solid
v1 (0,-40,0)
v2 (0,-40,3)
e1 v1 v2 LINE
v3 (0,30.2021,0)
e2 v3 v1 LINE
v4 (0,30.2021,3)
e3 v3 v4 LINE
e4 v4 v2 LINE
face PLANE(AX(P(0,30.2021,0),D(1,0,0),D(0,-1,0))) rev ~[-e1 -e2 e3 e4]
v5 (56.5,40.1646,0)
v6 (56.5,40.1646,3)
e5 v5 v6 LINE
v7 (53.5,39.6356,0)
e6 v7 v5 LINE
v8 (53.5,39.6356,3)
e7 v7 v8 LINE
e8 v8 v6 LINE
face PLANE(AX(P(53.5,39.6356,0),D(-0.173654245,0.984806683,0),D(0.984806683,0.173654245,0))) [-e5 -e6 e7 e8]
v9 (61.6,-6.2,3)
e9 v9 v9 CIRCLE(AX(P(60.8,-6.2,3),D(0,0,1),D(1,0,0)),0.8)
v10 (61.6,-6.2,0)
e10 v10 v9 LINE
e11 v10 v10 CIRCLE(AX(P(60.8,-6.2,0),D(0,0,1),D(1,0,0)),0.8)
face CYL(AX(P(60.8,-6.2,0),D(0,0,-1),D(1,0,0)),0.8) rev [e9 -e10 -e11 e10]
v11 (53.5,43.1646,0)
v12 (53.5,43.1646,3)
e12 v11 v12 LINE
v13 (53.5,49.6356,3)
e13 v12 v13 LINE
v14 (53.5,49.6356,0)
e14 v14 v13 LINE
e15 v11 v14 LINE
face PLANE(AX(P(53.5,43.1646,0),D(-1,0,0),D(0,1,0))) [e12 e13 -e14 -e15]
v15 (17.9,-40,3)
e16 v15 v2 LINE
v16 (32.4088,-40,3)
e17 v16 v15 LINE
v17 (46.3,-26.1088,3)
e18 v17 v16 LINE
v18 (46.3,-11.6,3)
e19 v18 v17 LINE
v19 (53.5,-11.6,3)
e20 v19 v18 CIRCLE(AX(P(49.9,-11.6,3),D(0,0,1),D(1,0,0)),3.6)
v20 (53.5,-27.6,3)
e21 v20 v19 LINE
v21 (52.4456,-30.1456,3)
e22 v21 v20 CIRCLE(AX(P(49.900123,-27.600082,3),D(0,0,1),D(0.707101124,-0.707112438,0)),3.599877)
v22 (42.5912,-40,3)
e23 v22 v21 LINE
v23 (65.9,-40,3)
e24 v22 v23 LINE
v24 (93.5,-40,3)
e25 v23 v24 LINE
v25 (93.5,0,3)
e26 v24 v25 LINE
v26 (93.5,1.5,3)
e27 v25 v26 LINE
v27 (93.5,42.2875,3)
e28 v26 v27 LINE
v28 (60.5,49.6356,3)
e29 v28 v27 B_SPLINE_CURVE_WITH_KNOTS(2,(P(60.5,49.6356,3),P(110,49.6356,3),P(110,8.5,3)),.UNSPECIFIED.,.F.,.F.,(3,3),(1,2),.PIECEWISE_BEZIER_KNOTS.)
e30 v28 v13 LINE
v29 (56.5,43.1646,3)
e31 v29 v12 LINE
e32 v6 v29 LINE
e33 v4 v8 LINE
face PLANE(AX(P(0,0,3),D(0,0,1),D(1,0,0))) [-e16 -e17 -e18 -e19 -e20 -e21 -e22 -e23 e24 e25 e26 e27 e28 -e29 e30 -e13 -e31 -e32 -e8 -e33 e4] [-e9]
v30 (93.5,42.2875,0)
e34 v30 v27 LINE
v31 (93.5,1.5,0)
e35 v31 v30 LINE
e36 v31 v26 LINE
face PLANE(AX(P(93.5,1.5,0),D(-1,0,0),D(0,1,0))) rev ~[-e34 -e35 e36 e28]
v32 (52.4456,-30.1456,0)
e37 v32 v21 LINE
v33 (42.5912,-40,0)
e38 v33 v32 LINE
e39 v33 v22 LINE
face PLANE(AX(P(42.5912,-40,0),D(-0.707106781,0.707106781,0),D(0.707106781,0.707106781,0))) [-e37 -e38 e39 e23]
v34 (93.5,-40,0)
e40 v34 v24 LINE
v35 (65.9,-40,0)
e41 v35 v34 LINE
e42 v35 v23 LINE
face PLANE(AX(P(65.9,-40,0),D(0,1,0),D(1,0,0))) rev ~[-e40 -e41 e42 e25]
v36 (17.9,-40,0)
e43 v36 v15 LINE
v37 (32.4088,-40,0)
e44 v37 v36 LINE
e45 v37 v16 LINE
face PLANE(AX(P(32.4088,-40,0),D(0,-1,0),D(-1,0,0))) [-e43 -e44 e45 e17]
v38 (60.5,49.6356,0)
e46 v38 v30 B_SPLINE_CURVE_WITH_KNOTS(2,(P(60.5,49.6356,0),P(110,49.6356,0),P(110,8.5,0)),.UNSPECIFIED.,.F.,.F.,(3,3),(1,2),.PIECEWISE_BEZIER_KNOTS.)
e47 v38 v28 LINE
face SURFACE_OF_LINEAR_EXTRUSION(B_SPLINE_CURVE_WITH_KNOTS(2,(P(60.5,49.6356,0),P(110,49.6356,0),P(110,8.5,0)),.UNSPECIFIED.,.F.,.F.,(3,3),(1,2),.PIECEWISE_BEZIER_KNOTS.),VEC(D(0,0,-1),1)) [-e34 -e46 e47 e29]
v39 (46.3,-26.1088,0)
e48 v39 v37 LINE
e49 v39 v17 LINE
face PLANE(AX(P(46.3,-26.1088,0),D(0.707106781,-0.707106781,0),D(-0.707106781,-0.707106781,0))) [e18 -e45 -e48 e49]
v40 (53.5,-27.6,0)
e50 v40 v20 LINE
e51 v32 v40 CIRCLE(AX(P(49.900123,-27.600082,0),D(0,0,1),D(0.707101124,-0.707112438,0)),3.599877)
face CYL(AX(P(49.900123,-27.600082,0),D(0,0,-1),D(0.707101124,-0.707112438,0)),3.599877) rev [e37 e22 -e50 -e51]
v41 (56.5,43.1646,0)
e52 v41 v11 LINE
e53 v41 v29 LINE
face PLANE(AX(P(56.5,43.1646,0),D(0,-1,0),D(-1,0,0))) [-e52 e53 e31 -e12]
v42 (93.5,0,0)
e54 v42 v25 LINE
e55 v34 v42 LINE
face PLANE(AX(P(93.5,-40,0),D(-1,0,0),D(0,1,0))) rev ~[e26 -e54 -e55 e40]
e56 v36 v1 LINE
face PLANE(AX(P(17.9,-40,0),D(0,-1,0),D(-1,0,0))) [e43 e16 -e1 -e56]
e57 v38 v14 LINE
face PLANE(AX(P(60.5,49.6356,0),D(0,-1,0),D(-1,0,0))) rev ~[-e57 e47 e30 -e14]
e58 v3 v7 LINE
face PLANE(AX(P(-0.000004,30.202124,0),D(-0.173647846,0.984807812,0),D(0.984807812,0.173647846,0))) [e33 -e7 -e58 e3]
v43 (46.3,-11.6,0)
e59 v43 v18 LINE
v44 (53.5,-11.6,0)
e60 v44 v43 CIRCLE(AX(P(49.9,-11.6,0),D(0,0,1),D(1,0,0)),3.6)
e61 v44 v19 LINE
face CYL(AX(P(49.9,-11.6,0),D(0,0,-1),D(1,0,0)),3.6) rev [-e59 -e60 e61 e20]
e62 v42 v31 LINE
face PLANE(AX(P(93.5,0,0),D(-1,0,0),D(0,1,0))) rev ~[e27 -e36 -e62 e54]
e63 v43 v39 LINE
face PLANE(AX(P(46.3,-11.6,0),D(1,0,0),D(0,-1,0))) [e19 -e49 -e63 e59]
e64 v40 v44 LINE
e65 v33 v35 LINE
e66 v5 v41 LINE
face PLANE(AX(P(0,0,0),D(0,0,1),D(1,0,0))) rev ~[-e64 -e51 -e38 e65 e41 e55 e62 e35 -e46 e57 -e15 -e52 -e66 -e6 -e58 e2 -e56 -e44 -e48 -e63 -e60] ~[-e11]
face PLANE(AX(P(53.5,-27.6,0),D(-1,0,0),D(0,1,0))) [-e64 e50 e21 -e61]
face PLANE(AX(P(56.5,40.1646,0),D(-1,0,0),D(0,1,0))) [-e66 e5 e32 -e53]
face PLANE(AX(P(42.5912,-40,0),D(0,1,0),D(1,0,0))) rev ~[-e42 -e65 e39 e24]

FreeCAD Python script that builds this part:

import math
import FreeCAD as App
import Part
import Sketcher
Q = App.Units.Quantity

doc = App.newDocument("Part")
body = doc.addObject("PartDesign::Body", "Body")

sketch1 = body.newObject("Sketcher::SketchObject", "Sketch")
sketch1.AttachmentSupport = (doc.getObject("XY_Plane"), [""])
sketch1.MapMode = "FlatFace"
sketch1.addGeometry(Part.LineSegment(App.Vector(93.5, -40, 0), App.Vector(93.5, 42.2875, 0)), False)
sketch1.addGeometry(Part.BSplineCurve([App.Vector(60.5, 49.6356, 0), App.Vector(81.421136, 49.6356, 0), App.Vector(93.49997, 42.287451, 0)], [3, 3], [1, 1.422649209], False, 2, [1, 1, 1], False), False)
sketch1.addGeometry(Part.LineSegment(App.Vector(60.5, 49.6356, 0), App.Vector(53.5, 49.6356, 0)), False)
sketch1.addGeometry(Part.LineSegment(App.Vector(53.5, 49.6356, 0), App.Vector(53.5, 43.1646, 0)), False)
sketch1.addGeometry(Part.LineSegment(App.Vector(53.5, 43.1646, 0), App.Vector(56.5, 43.1646, 0)), False)
sketch1.addGeometry(Part.LineSegment(App.Vector(56.5, 43.1646, 0), App.Vector(56.5, 40.1646, 0)), False)
sketch1.addGeometry(Part.LineSegment(App.Vector(56.5, 40.1646, 0), App.Vector(53.5, 39.6356, 0)), False)
sketch1.addGeometry(Part.LineSegment(App.Vector(53.5, 39.6356, 0), App.Vector(-0.000004, 30.202124, 0)), False)
sketch1.addGeometry(Part.LineSegment(App.Vector(0, 30.2021, 0), App.Vector(0, -40, 0)), False)
sketch1.addGeometry(Part.LineSegment(App.Vector(0, -40, 0), App.Vector(32.4088, -40, 0)), False)
sketch1.addGeometry(Part.LineSegment(App.Vector(32.4088, -40, 0), App.Vector(46.3, -26.1088, 0)), False)
sketch1.addGeometry(Part.LineSegment(App.Vector(46.3, -26.1088, 0), App.Vector(46.3, -11.6, 0)), False)
sketch1.addGeometry(Part.ArcOfCircle(Part.Circle(App.Vector(49.9, -11.6, 0), App.Vector(0, 0, 1), 3.6), math.radians(0), math.radians(180)), False)
sketch1.addGeometry(Part.LineSegment(App.Vector(53.5, -11.6, 0), App.Vector(53.5, -27.6, 0)), False)
sketch1.addGeometry(Part.ArcOfCircle(Part.Circle(App.Vector(49.9, -27.6, 0), App.Vector(0, 0, 1), 3.600022), math.radians(-45), math.radians(0)), False)
sketch1.addGeometry(Part.LineSegment(App.Vector(52.4456, -30.1456, 0), App.Vector(42.5912, -40, 0)), False)
sketch1.addGeometry(Part.LineSegment(App.Vector(42.5912, -40, 0), App.Vector(93.5, -40, 0)), False)
sketch1.addGeometry(Part.Circle(App.Vector(60.8, -6.2, 0), App.Vector(0, 0, 1), 0.8), False)
sketch1.addConstraint(Sketcher.Constraint("Block", 1))
sketch1.addConstraint(Sketcher.Constraint("Coincident", 0, 2, 1, 2))
sketch1.addConstraint(Sketcher.Constraint("Coincident", 1, 1, 2, 1))
sketch1.addConstraint(Sketcher.Constraint("Coincident", 2, 2, 3, 1))
sketch1.addConstraint(Sketcher.Constraint("Coincident", 3, 2, 4, 1))
sketch1.addConstraint(Sketcher.Constraint("Coincident", 4, 2, 5, 1))
sketch1.addConstraint(Sketcher.Constraint("Coincident", 5, 2, 6, 1))
sketch1.addConstraint(Sketcher.Constraint("Coincident", 6, 2, 7, 1))
sketch1.addConstraint(Sketcher.Constraint("Coincident", 7, 2, 8, 1))
sketch1.addConstraint(Sketcher.Constraint("Coincident", 8, 2, 9, 1))
sketch1.addConstraint(Sketcher.Constraint("Coincident", 9, 2, 10, 1))
sketch1.addConstraint(Sketcher.Constraint("Coincident", 10, 2, 11, 1))
sketch1.addConstraint(Sketcher.Constraint("Tangent", 11, 2, 12, 2))
sketch1.addConstraint(Sketcher.Constraint("Tangent", 12, 1, 13, 1))
sketch1.addConstraint(Sketcher.Constraint("Tangent", 13, 2, 14, 2))
sketch1.addConstraint(Sketcher.Constraint("Tangent", 14, 1, 15, 1))
sketch1.addConstraint(Sketcher.Constraint("Coincident", 15, 2, 16, 1))
sketch1.addConstraint(Sketcher.Constraint("Coincident", 16, 2, 0, 1))
sketch1.addConstraint(Sketcher.Constraint("Vertical", 0))
sketch1.addConstraint(Sketcher.Constraint("Horizontal", 2))
sketch1.addConstraint(Sketcher.Constraint("Vertical", 3))
sketch1.addConstraint(Sketcher.Constraint("Horizontal", 4))
sketch1.addConstraint(Sketcher.Constraint("Vertical", 5))
sketch1.addConstraint(Sketcher.Constraint("Vertical", 8))
sketch1.addConstraint(Sketcher.Constraint("Horizontal", 9))
sketch1.addConstraint(Sketcher.Constraint("Vertical", 11))
sketch1.addConstraint(Sketcher.Constraint("Vertical", 13))
sketch1.addConstraint(Sketcher.Constraint("Horizontal", 16))
sketch1.addConstraint(Sketcher.Constraint("Equal", 12, 14))
sketch1.addConstraint(Sketcher.Constraint("PointOnObject", 7, 2, -2))
sketch1.addConstraint(Sketcher.Constraint("Parallel", 6, 7))
sketch1.addConstraint(Sketcher.Constraint("Parallel", 10, 15))
sketch1.addConstraint(Sketcher.Constraint("Horizontal", 9, 2, 15, 2))
sketch1.addConstraint(Sketcher.Constraint("Vertical", 3, 2, 6, 2))
sketch1.addConstraint(Sketcher.Constraint("Vertical", 6, 2, 12, 1))
sketch1.addConstraint(Sketcher.Constraint("Equal", 4, 5))
sketch1.addConstraint(Sketcher.Constraint("DistanceX", 2, 2, 2, 1, 7.0))
sketch1.addConstraint(Sketcher.Constraint("DistanceX", 4, 1, 4, 2, 3.0))
sketch1.addConstraint(Sketcher.Constraint("DistanceY", 6, 2, 2, 2, 10.0))
sketch1.addConstraint(Sketcher.Constraint("Diameter", 17, 1.6))
sketch1.addConstraint(Sketcher.Constraint("Radius", 12, 3.6))
sketch1.addConstraint(Sketcher.Constraint("DistanceY", 13, 2, 13, 1, 16.0))
sketch1.addConstraint(Sketcher.Constraint("Angle", 6, Q("-169.9996 deg")))
sketch1.addConstraint(Sketcher.Constraint("Angle", 10, Q("45 deg")))
sketch1.addConstraint(Sketcher.Constraint("DistanceY", 8, 2, -1, 1, 40.0))
sketch1.addConstraint(Sketcher.Constraint("DistanceY", 12, 3, -1, 1, 11.6))
sketch1.addConstraint(Sketcher.Constraint("DistanceX", -1, 1, 17, 3, 60.8))
sketch1.addConstraint(Sketcher.Constraint("DistanceY", 17, 3, -1, 1, 6.2))
sketch1.addConstraint(Sketcher.Constraint("DistanceX", 9, 1, 9, 2, 32.4088))
pad1 = body.newObject("PartDesign::Pad", "Pad")
pad1.Profile = sketch1
pad1.Length = 3

doc.recompute()
